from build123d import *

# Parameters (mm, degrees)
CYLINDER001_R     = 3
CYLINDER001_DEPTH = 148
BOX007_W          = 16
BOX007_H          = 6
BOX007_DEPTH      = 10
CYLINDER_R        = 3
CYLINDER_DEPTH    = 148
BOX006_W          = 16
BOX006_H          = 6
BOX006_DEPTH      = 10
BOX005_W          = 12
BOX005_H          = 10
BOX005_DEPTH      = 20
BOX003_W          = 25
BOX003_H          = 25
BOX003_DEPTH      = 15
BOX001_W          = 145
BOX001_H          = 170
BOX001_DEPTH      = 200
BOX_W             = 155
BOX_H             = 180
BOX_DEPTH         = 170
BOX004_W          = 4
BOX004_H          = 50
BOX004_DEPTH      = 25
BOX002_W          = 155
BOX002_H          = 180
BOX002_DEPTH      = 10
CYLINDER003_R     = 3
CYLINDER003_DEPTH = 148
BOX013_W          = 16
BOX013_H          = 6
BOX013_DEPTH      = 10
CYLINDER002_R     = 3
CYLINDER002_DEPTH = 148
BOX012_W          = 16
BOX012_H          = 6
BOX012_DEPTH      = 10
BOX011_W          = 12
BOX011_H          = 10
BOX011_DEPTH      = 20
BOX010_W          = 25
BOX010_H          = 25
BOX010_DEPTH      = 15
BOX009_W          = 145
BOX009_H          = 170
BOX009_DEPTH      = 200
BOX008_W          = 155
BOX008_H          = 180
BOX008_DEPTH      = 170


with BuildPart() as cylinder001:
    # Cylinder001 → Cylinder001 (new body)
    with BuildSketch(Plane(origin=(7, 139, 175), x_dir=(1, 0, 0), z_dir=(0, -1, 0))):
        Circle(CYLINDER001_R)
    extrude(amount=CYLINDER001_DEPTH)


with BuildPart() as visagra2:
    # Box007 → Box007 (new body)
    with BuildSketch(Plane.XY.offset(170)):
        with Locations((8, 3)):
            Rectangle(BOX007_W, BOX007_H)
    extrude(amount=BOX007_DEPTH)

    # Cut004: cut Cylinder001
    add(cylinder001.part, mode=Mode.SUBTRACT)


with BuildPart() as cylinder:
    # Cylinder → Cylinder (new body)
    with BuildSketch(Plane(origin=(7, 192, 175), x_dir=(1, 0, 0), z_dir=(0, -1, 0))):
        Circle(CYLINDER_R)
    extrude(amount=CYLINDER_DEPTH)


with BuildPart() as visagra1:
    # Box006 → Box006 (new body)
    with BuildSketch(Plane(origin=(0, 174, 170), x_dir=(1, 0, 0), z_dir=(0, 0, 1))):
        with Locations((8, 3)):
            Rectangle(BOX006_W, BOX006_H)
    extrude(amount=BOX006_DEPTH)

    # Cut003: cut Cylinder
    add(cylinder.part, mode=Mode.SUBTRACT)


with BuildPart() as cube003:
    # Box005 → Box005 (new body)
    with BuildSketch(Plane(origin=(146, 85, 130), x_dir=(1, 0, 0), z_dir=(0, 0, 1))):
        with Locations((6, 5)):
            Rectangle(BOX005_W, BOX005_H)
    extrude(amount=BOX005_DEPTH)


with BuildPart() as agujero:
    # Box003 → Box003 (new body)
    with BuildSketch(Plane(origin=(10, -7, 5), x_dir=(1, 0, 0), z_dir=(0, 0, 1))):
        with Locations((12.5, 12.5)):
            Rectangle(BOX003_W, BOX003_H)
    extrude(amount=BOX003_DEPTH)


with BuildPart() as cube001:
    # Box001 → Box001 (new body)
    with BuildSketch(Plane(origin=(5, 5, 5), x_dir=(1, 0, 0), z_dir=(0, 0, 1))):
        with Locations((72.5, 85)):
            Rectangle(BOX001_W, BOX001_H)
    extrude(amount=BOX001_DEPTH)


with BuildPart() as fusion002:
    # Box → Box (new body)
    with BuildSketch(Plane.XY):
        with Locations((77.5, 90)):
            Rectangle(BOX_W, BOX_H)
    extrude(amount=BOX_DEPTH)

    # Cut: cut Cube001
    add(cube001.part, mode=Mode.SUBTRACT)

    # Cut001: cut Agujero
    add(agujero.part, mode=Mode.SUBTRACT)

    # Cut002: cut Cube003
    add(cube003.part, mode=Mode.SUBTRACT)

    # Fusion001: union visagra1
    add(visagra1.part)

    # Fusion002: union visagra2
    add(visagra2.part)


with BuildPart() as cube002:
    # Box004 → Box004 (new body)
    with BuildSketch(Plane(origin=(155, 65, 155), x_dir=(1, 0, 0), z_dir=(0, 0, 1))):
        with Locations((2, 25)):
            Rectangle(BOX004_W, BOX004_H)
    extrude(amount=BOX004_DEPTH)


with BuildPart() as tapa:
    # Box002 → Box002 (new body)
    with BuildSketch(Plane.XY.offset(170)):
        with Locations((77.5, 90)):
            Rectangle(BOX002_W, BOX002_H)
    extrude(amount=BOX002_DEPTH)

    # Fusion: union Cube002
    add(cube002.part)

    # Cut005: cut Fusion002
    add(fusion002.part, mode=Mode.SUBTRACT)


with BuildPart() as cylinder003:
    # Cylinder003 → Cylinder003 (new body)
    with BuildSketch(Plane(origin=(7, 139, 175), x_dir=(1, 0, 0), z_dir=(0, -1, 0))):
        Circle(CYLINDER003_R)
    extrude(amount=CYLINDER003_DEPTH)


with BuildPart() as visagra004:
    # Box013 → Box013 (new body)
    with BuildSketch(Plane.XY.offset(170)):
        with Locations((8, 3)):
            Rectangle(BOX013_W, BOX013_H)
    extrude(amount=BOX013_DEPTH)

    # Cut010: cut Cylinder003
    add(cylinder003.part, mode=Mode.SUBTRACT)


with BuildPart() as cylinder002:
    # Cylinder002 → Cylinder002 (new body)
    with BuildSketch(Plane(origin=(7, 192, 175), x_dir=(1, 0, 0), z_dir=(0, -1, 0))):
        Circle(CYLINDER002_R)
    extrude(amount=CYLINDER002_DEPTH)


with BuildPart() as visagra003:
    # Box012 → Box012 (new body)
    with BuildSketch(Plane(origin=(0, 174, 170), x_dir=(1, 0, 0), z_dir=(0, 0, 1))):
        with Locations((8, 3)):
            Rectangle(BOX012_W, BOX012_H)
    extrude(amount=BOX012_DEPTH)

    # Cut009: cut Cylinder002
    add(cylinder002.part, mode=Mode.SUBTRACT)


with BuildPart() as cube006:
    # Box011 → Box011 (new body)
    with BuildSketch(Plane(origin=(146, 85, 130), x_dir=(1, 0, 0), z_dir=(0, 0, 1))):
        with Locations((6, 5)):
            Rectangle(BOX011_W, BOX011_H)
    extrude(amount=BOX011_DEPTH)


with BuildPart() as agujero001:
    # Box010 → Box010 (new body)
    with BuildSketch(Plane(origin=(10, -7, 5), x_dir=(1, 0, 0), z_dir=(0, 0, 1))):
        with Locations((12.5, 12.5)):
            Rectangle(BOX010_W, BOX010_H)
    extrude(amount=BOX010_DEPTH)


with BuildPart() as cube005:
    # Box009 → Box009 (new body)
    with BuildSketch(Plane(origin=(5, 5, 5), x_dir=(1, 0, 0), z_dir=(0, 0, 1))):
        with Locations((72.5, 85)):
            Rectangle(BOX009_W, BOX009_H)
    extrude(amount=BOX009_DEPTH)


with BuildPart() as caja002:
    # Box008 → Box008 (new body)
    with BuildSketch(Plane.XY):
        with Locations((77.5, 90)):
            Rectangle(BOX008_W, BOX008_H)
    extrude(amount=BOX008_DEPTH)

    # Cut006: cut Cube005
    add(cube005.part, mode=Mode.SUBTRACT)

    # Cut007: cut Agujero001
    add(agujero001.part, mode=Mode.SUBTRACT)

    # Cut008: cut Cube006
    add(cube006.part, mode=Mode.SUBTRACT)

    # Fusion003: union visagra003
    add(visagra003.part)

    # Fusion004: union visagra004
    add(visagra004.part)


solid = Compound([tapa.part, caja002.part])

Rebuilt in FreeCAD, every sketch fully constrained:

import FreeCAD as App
import Part
import Sketcher
Q = App.Units.Quantity


def add_polygon(sketch, points):
    """Adds a closed chain of lines whose ends are joined by coincident constraints."""
    first, n = sketch.GeometryCount, len(points)
    for a, b in zip(points, points[1:] + points[:1]):
        sketch.addGeometry(Part.LineSegment(App.Vector(*a, 0), App.Vector(*b, 0)), False)
    for i in range(n):
        sketch.addConstraint(Sketcher.Constraint("Coincident", first + i, 2, first + (i + 1) % n, 1))

doc = App.newDocument("Part")
body = doc.addObject("PartDesign::Body", "Body")

# Sketch on XZ plane
sketch1 = body.newObject("Sketcher::SketchObject", "Sketch")
sketch1.AttachmentSupport = (doc.getObject("XZ_Plane"), [""])
sketch1.MapMode = "FlatFace"
sketch1.AttachmentOffset = App.Placement(App.Vector(0, 0, -139), App.Rotation())
sketch1.addGeometry(Part.Circle(App.Vector(7, 175, 0), App.Vector(0, 0, 1), 3), False)
sketch1.addConstraint([
    Sketcher.Constraint("Diameter", 0, Q("6 mm")),
    Sketcher.Constraint("DistanceX", -1, 1, 0, 3, Q("7 mm")),
    Sketcher.Constraint("DistanceY", -1, 1, 0, 3, Q("175 mm")),
])
pad1 = body.newObject("PartDesign::Pad", "Pad")
pad1.Profile = sketch1
pad1.Length = 148
body2 = doc.addObject("PartDesign::Body", "Body001")

# Sketch on XY plane
sketch2 = body2.newObject("Sketcher::SketchObject", "Sketch001")
sketch2.AttachmentSupport = (doc.getObject("XY_Plane001"), [""])
sketch2.MapMode = "FlatFace"
sketch2.AttachmentOffset = App.Placement(App.Vector(0, 0, 170), App.Rotation())
add_polygon(sketch2, [(0, 6), (0, 0), (16, 0), (16, 6)])  # lines 0-3
sketch2.addConstraint([
    Sketcher.Constraint("Vertical", 0),
    Sketcher.Constraint("Horizontal", 1),
    Sketcher.Constraint("Vertical", 2),
    Sketcher.Constraint("Horizontal", 3),
    Sketcher.Constraint("Coincident", 0, 2, -1, 1),
    Sketcher.Constraint("DistanceX", 1, 1, 1, 2, Q("16 mm")),
    Sketcher.Constraint("DistanceY", 0, 2, 0, 1, Q("6 mm")),
])
pad2 = body2.newObject("PartDesign::Pad", "Pad001")
pad2.Profile = sketch2
pad2.Length = 10
doc.recompute()

boolean = body2.newObject("PartDesign::Boolean", "Boolean")
boolean.Type = "Cut"
boolean.addObjects([body])
body3 = doc.addObject("PartDesign::Body", "Body002")

# Sketch on XZ plane
sketch3 = body3.newObject("Sketcher::SketchObject", "Sketch002")
sketch3.AttachmentSupport = (doc.getObject("XZ_Plane002"), [""])
sketch3.MapMode = "FlatFace"
sketch3.AttachmentOffset = App.Placement(App.Vector(0, 0, -192), App.Rotation())
sketch3.addGeometry(Part.Circle(App.Vector(7, 175, 0), App.Vector(0, 0, 1), 3), False)
sketch3.addConstraint([
    Sketcher.Constraint("Diameter", 0, Q("6 mm")),
    Sketcher.Constraint("DistanceX", -1, 1, 0, 3, Q("7 mm")),
    Sketcher.Constraint("DistanceY", -1, 1, 0, 3, Q("175 mm")),
])
pad3 = body3.newObject("PartDesign::Pad", "Pad002")
pad3.Profile = sketch3
pad3.Length = 148
body4 = doc.addObject("PartDesign::Body", "Body003")

# Sketch on XY plane
sketch4 = body4.newObject("Sketcher::SketchObject", "Sketch003")
sketch4.AttachmentSupport = (doc.getObject("XY_Plane003"), [""])
sketch4.MapMode = "FlatFace"
sketch4.AttachmentOffset = App.Placement(App.Vector(0, 0, 170), App.Rotation())
add_polygon(sketch4, [(0, 180), (0, 174), (16, 174), (16, 180)])  # lines 0-3
sketch4.addConstraint([
    Sketcher.Constraint("Vertical", 0),
    Sketcher.Constraint("Horizontal", 1),
    Sketcher.Constraint("Vertical", 2),
    Sketcher.Constraint("Horizontal", 3),
    Sketcher.Constraint("PointOnObject", 0, 2, -2),
    Sketcher.Constraint("DistanceX", 1, 1, 1, 2, Q("16 mm")),
    Sketcher.Constraint("DistanceY", 0, 2, 0, 1, Q("6 mm")),
    Sketcher.Constraint("DistanceY", -1, 1, 0, 2, Q("174 mm")),
])
pad4 = body4.newObject("PartDesign::Pad", "Pad003")
pad4.Profile = sketch4
pad4.Length = 10
doc.recompute()

boolean2 = body4.newObject("PartDesign::Boolean", "Boolean001")
boolean2.Type = "Cut"
boolean2.addObjects([body3])
body5 = doc.addObject("PartDesign::Body", "Body004")

# Sketch on XY plane
sketch5 = body5.newObject("Sketcher::SketchObject", "Sketch004")
sketch5.AttachmentSupport = (doc.getObject("XY_Plane004"), [""])
sketch5.MapMode = "FlatFace"
sketch5.AttachmentOffset = App.Placement(App.Vector(0, 0, 130), App.Rotation())
add_polygon(sketch5, [(146, 95), (146, 85), (158, 85), (158, 95)])  # lines 0-3
sketch5.addConstraint([
    Sketcher.Constraint("Vertical", 0),
    Sketcher.Constraint("Horizontal", 1),
    Sketcher.Constraint("Vertical", 2),
    Sketcher.Constraint("Horizontal", 3),
    Sketcher.Constraint("DistanceX", 1, 1, 1, 2, Q("12 mm")),
    Sketcher.Constraint("DistanceY", 0, 2, 0, 1, Q("10 mm")),
    Sketcher.Constraint("DistanceX", -1, 1, 0, 2, Q("146 mm")),
    Sketcher.Constraint("DistanceY", -1, 1, 0, 2, Q("85 mm")),
])
pad5 = body5.newObject("PartDesign::Pad", "Pad004")
pad5.Profile = sketch5
pad5.Length = 20
body6 = doc.addObject("PartDesign::Body", "Body005")

# Sketch on XY plane
sketch6 = body6.newObject("Sketcher::SketchObject", "Sketch005")
sketch6.AttachmentSupport = (doc.getObject("XY_Plane005"), [""])
sketch6.MapMode = "FlatFace"
sketch6.AttachmentOffset = App.Placement(App.Vector(0, 0, 5), App.Rotation())
add_polygon(sketch6, [(10, 18), (10, -7), (35, -7), (35, 18)])  # lines 0-3
sketch6.addConstraint([
    Sketcher.Constraint("Vertical", 0),
    Sketcher.Constraint("Horizontal", 1),
    Sketcher.Constraint("Vertical", 2),
    Sketcher.Constraint("Horizontal", 3),
    Sketcher.Constraint("Equal", 3, 0),
    Sketcher.Constraint("DistanceX", 1, 1, 1, 2, Q("25 mm")),
    Sketcher.Constraint("DistanceX", -1, 1, 0, 2, Q("10 mm")),
    Sketcher.Constraint("DistanceY", 0, 2, -1, 1, Q("7 mm")),
])
pad6 = body6.newObject("PartDesign::Pad", "Pad005")
pad6.Profile = sketch6
pad6.Length = 15
body7 = doc.addObject("PartDesign::Body", "Body006")

# Sketch on XY plane
sketch7 = body7.newObject("Sketcher::SketchObject", "Sketch006")
sketch7.AttachmentSupport = (doc.getObject("XY_Plane006"), [""])
sketch7.MapMode = "FlatFace"
sketch7.AttachmentOffset = App.Placement(App.Vector(0, 0, 5), App.Rotation())
add_polygon(sketch7, [(5, 175), (5, 5), (150, 5), (150, 175)])  # lines 0-3
sketch7.addConstraint([
    Sketcher.Constraint("Vertical", 0),
    Sketcher.Constraint("Horizontal", 1),
    Sketcher.Constraint("Vertical", 2),
    Sketcher.Constraint("Horizontal", 3),
    Sketcher.Constraint("DistanceX", 1, 1, 1, 2, Q("145 mm")),
    Sketcher.Constraint("DistanceY", 0, 2, 0, 1, Q("170 mm")),
    Sketcher.Constraint("DistanceX", -1, 1, 0, 2, Q("5 mm")),
    Sketcher.Constraint("DistanceY", -1, 1, 0, 2, Q("5 mm")),
])
pad7 = body7.newObject("PartDesign::Pad", "Pad006")
pad7.Profile = sketch7
pad7.Length = 200
body8 = doc.addObject("PartDesign::Body", "Body007")

# Sketch on XY plane
sketch8 = body8.newObject("Sketcher::SketchObject", "Sketch007")
sketch8.AttachmentSupport = (doc.getObject("XY_Plane007"), [""])
sketch8.MapMode = "FlatFace"
add_polygon(sketch8, [(0, 180), (0, 0), (155, 0), (155, 180)])  # lines 0-3
sketch8.addConstraint([
    Sketcher.Constraint("Vertical", 0),
    Sketcher.Constraint("Horizontal", 1),
    Sketcher.Constraint("Vertical", 2),
    Sketcher.Constraint("Horizontal", 3),
    Sketcher.Constraint("Coincident", 0, 2, -1, 1),
    Sketcher.Constraint("DistanceX", 1, 1, 1, 2, Q("155 mm")),
    Sketcher.Constraint("DistanceY", 0, 2, 0, 1, Q("180 mm")),
])
pad8 = body8.newObject("PartDesign::Pad", "Pad007")
pad8.Profile = sketch8
pad8.Length = 170
doc.recompute()

boolean3 = body8.newObject("PartDesign::Boolean", "Boolean002")
boolean3.Type = "Cut"
boolean3.addObjects([body7])
doc.recompute()

boolean4 = body8.newObject("PartDesign::Boolean", "Boolean003")
boolean4.Type = "Cut"
boolean4.addObjects([body6])
doc.recompute()

boolean5 = body8.newObject("PartDesign::Boolean", "Boolean004")
boolean5.Type = "Cut"
boolean5.addObjects([body5])
doc.recompute()

boolean6 = body8.newObject("PartDesign::Boolean", "Boolean005")
boolean6.Type = "Fuse"
boolean6.addObjects([body4])
doc.recompute()

boolean7 = body8.newObject("PartDesign::Boolean", "Boolean006")
boolean7.Type = "Fuse"
boolean7.addObjects([body2])
body9 = doc.addObject("PartDesign::Body", "Body008")

# Sketch on XY plane
sketch9 = body9.newObject("Sketcher::SketchObject", "Sketch008")
sketch9.AttachmentSupport = (doc.getObject("XY_Plane008"), [""])
sketch9.MapMode = "FlatFace"
sketch9.AttachmentOffset = App.Placement(App.Vector(0, 0, 155), App.Rotation())
add_polygon(sketch9, [(155, 115), (155, 65), (159, 65), (159, 115)])  # lines 0-3
sketch9.addConstraint([
    Sketcher.Constraint("Vertical", 0),
    Sketcher.Constraint("Horizontal", 1),
    Sketcher.Constraint("Vertical", 2),
    Sketcher.Constraint("Horizontal", 3),
    Sketcher.Constraint("DistanceX", 1, 1, 1, 2, Q("4 mm")),
    Sketcher.Constraint("DistanceY", 0, 2, 0, 1, Q("50 mm")),
    Sketcher.Constraint("DistanceX", -1, 1, 0, 2, Q("155 mm")),
    Sketcher.Constraint("DistanceY", -1, 1, 0, 2, Q("65 mm")),
])
pad9 = body9.newObject("PartDesign::Pad", "Pad008")
pad9.Profile = sketch9
pad9.Length = 25
body10 = doc.addObject("PartDesign::Body", "Body009")

# Sketch on XY plane
sketch10 = body10.newObject("Sketcher::SketchObject", "Sketch009")
sketch10.AttachmentSupport = (doc.getObject("XY_Plane009"), [""])
sketch10.MapMode = "FlatFace"
sketch10.AttachmentOffset = App.Placement(App.Vector(0, 0, 170), App.Rotation())
add_polygon(sketch10, [(0, 180), (0, 0), (155, 0), (155, 180)])  # lines 0-3
sketch10.addConstraint([
    Sketcher.Constraint("Vertical", 0),
    Sketcher.Constraint("Horizontal", 1),
    Sketcher.Constraint("Vertical", 2),
    Sketcher.Constraint("Horizontal", 3),
    Sketcher.Constraint("Coincident", 0, 2, -1, 1),
    Sketcher.Constraint("DistanceX", 1, 1, 1, 2, Q("155 mm")),
    Sketcher.Constraint("DistanceY", 0, 2, 0, 1, Q("180 mm")),
])
pad10 = body10.newObject("PartDesign::Pad", "Pad009")
pad10.Profile = sketch10
pad10.Length = 10
doc.recompute()

boolean8 = body10.newObject("PartDesign::Boolean", "Boolean007")
boolean8.Type = "Fuse"
boolean8.addObjects([body9])
doc.recompute()

boolean9 = body10.newObject("PartDesign::Boolean", "Boolean008")
boolean9.Type = "Cut"
boolean9.addObjects([body8])
body11 = doc.addObject("PartDesign::Body", "Body010")

# Sketch on XZ plane
sketch11 = body11.newObject("Sketcher::SketchObject", "Sketch010")
sketch11.AttachmentSupport = (doc.getObject("XZ_Plane010"), [""])
sketch11.MapMode = "FlatFace"
sketch11.AttachmentOffset = App.Placement(App.Vector(0, 0, -139), App.Rotation())
sketch11.addGeometry(Part.Circle(App.Vector(7, 175, 0), App.Vector(0, 0, 1), 3), False)
sketch11.addConstraint([
    Sketcher.Constraint("Diameter", 0, Q("6 mm")),
    Sketcher.Constraint("DistanceX", -1, 1, 0, 3, Q("7 mm")),
    Sketcher.Constraint("DistanceY", -1, 1, 0, 3, Q("175 mm")),
])
pad11 = body11.newObject("PartDesign::Pad", "Pad010")
pad11.Profile = sketch11
pad11.Length = 148
body12 = doc.addObject("PartDesign::Body", "Body011")

# Sketch on XY plane
sketch12 = body12.newObject("Sketcher::SketchObject", "Sketch011")
sketch12.AttachmentSupport = (doc.getObject("XY_Plane011"), [""])
sketch12.MapMode = "FlatFace"
sketch12.AttachmentOffset = App.Placement(App.Vector(0, 0, 170), App.Rotation())
add_polygon(sketch12, [(0, 6), (0, 0), (16, 0), (16, 6)])  # lines 0-3
sketch12.addConstraint([
    Sketcher.Constraint("Vertical", 0),
    Sketcher.Constraint("Horizontal", 1),
    Sketcher.Constraint("Vertical", 2),
    Sketcher.Constraint("Horizontal", 3),
    Sketcher.Constraint("Coincident", 0, 2, -1, 1),
    Sketcher.Constraint("DistanceX", 1, 1, 1, 2, Q("16 mm")),
    Sketcher.Constraint("DistanceY", 0, 2, 0, 1, Q("6 mm")),
])
pad12 = body12.newObject("PartDesign::Pad", "Pad011")
pad12.Profile = sketch12
pad12.Length = 10
doc.recompute()

boolean10 = body12.newObject("PartDesign::Boolean", "Boolean009")
boolean10.Type = "Cut"
boolean10.addObjects([body11])
body13 = doc.addObject("PartDesign::Body", "Body012")

# Sketch on XZ plane
sketch13 = body13.newObject("Sketcher::SketchObject", "Sketch012")
sketch13.AttachmentSupport = (doc.getObject("XZ_Plane012"), [""])
sketch13.MapMode = "FlatFace"
sketch13.AttachmentOffset = App.Placement(App.Vector(0, 0, -192), App.Rotation())
sketch13.addGeometry(Part.Circle(App.Vector(7, 175, 0), App.Vector(0, 0, 1), 3), False)
sketch13.addConstraint([
    Sketcher.Constraint("Diameter", 0, Q("6 mm")),
    Sketcher.Constraint("DistanceX", -1, 1, 0, 3, Q("7 mm")),
    Sketcher.Constraint("DistanceY", -1, 1, 0, 3, Q("175 mm")),
])
pad13 = body13.newObject("PartDesign::Pad", "Pad012")
pad13.Profile = sketch13
pad13.Length = 148
body14 = doc.addObject("PartDesign::Body", "Body013")

# Sketch on XY plane
sketch14 = body14.newObject("Sketcher::SketchObject", "Sketch013")
sketch14.AttachmentSupport = (doc.getObject("XY_Plane013"), [""])
sketch14.MapMode = "FlatFace"
sketch14.AttachmentOffset = App.Placement(App.Vector(0, 0, 170), App.Rotation())
add_polygon(sketch14, [(0, 180), (0, 174), (16, 174), (16, 180)])  # lines 0-3
sketch14.addConstraint([
    Sketcher.Constraint("Vertical", 0),
    Sketcher.Constraint("Horizontal", 1),
    Sketcher.Constraint("Vertical", 2),
    Sketcher.Constraint("Horizontal", 3),
    Sketcher.Constraint("PointOnObject", 0, 2, -2),
    Sketcher.Constraint("DistanceX", 1, 1, 1, 2, Q("16 mm")),
    Sketcher.Constraint("DistanceY", 0, 2, 0, 1, Q("6 mm")),
    Sketcher.Constraint("DistanceY", -1, 1, 0, 2, Q("174 mm")),
])
pad14 = body14.newObject("PartDesign::Pad", "Pad013")
pad14.Profile = sketch14
pad14.Length = 10
doc.recompute()

boolean11 = body14.newObject("PartDesign::Boolean", "Boolean010")
boolean11.Type = "Cut"
boolean11.addObjects([body13])
body15 = doc.addObject("PartDesign::Body", "Body014")

# Sketch on XY plane
sketch15 = body15.newObject("Sketcher::SketchObject", "Sketch014")
sketch15.AttachmentSupport = (doc.getObject("XY_Plane014"), [""])
sketch15.MapMode = "FlatFace"
sketch15.AttachmentOffset = App.Placement(App.Vector(0, 0, 130), App.Rotation())
add_polygon(sketch15, [(146, 95), (146, 85), (158, 85), (158, 95)])  # lines 0-3
sketch15.addConstraint([
    Sketcher.Constraint("Vertical", 0),
    Sketcher.Constraint("Horizontal", 1),
    Sketcher.Constraint("Vertical", 2),
    Sketcher.Constraint("Horizontal", 3),
    Sketcher.Constraint("DistanceX", 1, 1, 1, 2, Q("12 mm")),
    Sketcher.Constraint("DistanceY", 0, 2, 0, 1, Q("10 mm")),
    Sketcher.Constraint("DistanceX", -1, 1, 0, 2, Q("146 mm")),
    Sketcher.Constraint("DistanceY", -1, 1, 0, 2, Q("85 mm")),
])
pad15 = body15.newObject("PartDesign::Pad", "Pad014")
pad15.Profile = sketch15
pad15.Length = 20
body16 = doc.addObject("PartDesign::Body", "Body015")

# Sketch on XY plane
sketch16 = body16.newObject("Sketcher::SketchObject", "Sketch015")
sketch16.AttachmentSupport = (doc.getObject("XY_Plane015"), [""])
sketch16.MapMode = "FlatFace"
sketch16.AttachmentOffset = App.Placement(App.Vector(0, 0, 5), App.Rotation())
add_polygon(sketch16, [(10, 18), (10, -7), (35, -7), (35, 18)])  # lines 0-3
sketch16.addConstraint([
    Sketcher.Constraint("Vertical", 0),
    Sketcher.Constraint("Horizontal", 1),
    Sketcher.Constraint("Vertical", 2),
    Sketcher.Constraint("Horizontal", 3),
    Sketcher.Constraint("Equal", 3, 0),
    Sketcher.Constraint("DistanceX", 1, 1, 1, 2, Q("25 mm")),
    Sketcher.Constraint("DistanceX", -1, 1, 0, 2, Q("10 mm")),
    Sketcher.Constraint("DistanceY", 0, 2, -1, 1, Q("7 mm")),
])
pad16 = body16.newObject("PartDesign::Pad", "Pad015")
pad16.Profile = sketch16
pad16.Length = 15
body17 = doc.addObject("PartDesign::Body", "Body016")

# Sketch on XY plane
sketch17 = body17.newObject("Sketcher::SketchObject", "Sketch016")
sketch17.AttachmentSupport = (doc.getObject("XY_Plane016"), [""])
sketch17.MapMode = "FlatFace"
sketch17.AttachmentOffset = App.Placement(App.Vector(0, 0, 5), App.Rotation())
add_polygon(sketch17, [(5, 175), (5, 5), (150, 5), (150, 175)])  # lines 0-3
sketch17.addConstraint([
    Sketcher.Constraint("Vertical", 0),
    Sketcher.Constraint("Horizontal", 1),
    Sketcher.Constraint("Vertical", 2),
    Sketcher.Constraint("Horizontal", 3),
    Sketcher.Constraint("DistanceX", 1, 1, 1, 2, Q("145 mm")),
    Sketcher.Constraint("DistanceY", 0, 2, 0, 1, Q("170 mm")),
    Sketcher.Constraint("DistanceX", -1, 1, 0, 2, Q("5 mm")),
    Sketcher.Constraint("DistanceY", -1, 1, 0, 2, Q("5 mm")),
])
pad17 = body17.newObject("PartDesign::Pad", "Pad016")
pad17.Profile = sketch17
pad17.Length = 200
body18 = doc.addObject("PartDesign::Body", "Body017")

# Sketch on XY plane
sketch18 = body18.newObject("Sketcher::SketchObject", "Sketch017")
sketch18.AttachmentSupport = (doc.getObject("XY_Plane017"), [""])
sketch18.MapMode = "FlatFace"
add_polygon(sketch18, [(0, 180), (0, 0), (155, 0), (155, 180)])  # lines 0-3
sketch18.addConstraint([
    Sketcher.Constraint("Vertical", 0),
    Sketcher.Constraint("Horizontal", 1),
    Sketcher.Constraint("Vertical", 2),
    Sketcher.Constraint("Horizontal", 3),
    Sketcher.Constraint("Coincident", 0, 2, -1, 1),
    Sketcher.Constraint("DistanceX", 1, 1, 1, 2, Q("155 mm")),
    Sketcher.Constraint("DistanceY", 0, 2, 0, 1, Q("180 mm")),
])
pad18 = body18.newObject("PartDesign::Pad", "Pad017")
pad18.Profile = sketch18
pad18.Length = 170
doc.recompute()

boolean12 = body18.newObject("PartDesign::Boolean", "Boolean011")
boolean12.Type = "Cut"
boolean12.addObjects([body17])
doc.recompute()

boolean13 = body18.newObject("PartDesign::Boolean", "Boolean012")
boolean13.Type = "Cut"
boolean13.addObjects([body16])
doc.recompute()

boolean14 = body18.newObject("PartDesign::Boolean", "Boolean013")
boolean14.Type = "Cut"
boolean14.addObjects([body15])
doc.recompute()

boolean15 = body18.newObject("PartDesign::Boolean", "Boolean014")
boolean15.Type = "Fuse"
boolean15.addObjects([body14])
doc.recompute()

boolean16 = body18.newObject("PartDesign::Boolean", "Boolean015")
boolean16.Type = "Fuse"
boolean16.addObjects([body12])

doc.recompute()
